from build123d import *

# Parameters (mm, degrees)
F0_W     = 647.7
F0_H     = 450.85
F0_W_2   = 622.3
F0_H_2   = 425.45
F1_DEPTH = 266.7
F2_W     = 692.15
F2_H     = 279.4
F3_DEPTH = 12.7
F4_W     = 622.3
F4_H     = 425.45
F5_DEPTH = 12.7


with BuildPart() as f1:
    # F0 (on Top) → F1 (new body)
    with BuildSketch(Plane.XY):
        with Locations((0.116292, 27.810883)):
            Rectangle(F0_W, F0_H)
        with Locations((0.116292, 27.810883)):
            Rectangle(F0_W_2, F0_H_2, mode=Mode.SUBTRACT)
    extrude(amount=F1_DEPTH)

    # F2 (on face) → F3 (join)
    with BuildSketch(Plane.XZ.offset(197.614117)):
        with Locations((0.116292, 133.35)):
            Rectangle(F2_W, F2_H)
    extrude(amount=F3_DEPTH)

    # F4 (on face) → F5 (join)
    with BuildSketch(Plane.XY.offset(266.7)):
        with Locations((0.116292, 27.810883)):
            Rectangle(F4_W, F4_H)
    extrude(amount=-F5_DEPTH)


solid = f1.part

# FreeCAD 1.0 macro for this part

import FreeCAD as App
import Part
import Sketcher
from FreeCAD import Vector
Q = App.Units.Quantity

doc = App.newDocument("Part")
params = doc.addObject("Spreadsheet::Sheet", "Params")
for row, (alias, value) in enumerate([
    ("sketch1_width", "25.5 in"),
    ("sketch1_width2", "24.5 in"),
    ("sketch1_height", "17.75 in"),
    ("sketch1_height2", "16.75 in"),
    ("pad1_length", "10.5 in"),
    ("sketch2_height", "11 in"),
    ("sketch2_width", "27.25 in"),
    ("pad2_length", "0.5 in"),
    ("sketch3_width", "24.5 in"),
    ("sketch3_height", "16.75 in"),
    ("pad3_length", "0.5 in"),
], start=1):
    params.set(f"A{row}", alias)
    params.set(f"B{row}", "=" + value)
    params.setAlias(f"B{row}", alias)

body = doc.addObject("PartDesign::Body", "Body")

sketch1 = body.newObject("Sketcher::SketchObject", "Sketch")
sketch1.AttachmentSupport = (doc.getObject("XY_Plane"), [""])
sketch1.MapMode = "FlatFace"
sketch1.addGeometry([
    Part.LineSegment(Vector(-324, 253, 0), Vector(-324, -198, 0)),
    Part.LineSegment(Vector(-324, -198, 0), Vector(324, -198, 0)),
    Part.LineSegment(Vector(324, -198, 0), Vector(324, 253, 0)),
    Part.LineSegment(Vector(324, 253, 0), Vector(-324, 253, 0)),
    Part.LineSegment(Vector(311, -185, 0), Vector(-311, -185, 0)),
    Part.LineSegment(Vector(-311, -185, 0), Vector(-311, 241, 0)),
    Part.LineSegment(Vector(-311, 241, 0), Vector(311, 241, 0)),
    Part.LineSegment(Vector(311, 241, 0), Vector(311, -185, 0)),
], False)
sketch1.addConstraint([
    Sketcher.Constraint("Coincident", 0, 2, 1, 1),
    Sketcher.Constraint("Coincident", 1, 2, 2, 1),
    Sketcher.Constraint("Coincident", 2, 2, 3, 1),
    Sketcher.Constraint("Coincident", 3, 2, 0, 1),
    Sketcher.Constraint("Coincident", 4, 2, 5, 1),
    Sketcher.Constraint("Coincident", 5, 2, 6, 1),
    Sketcher.Constraint("Coincident", 6, 2, 7, 1),
    Sketcher.Constraint("Coincident", 7, 2, 4, 1),
    Sketcher.Constraint("Vertical", 0),
    Sketcher.Constraint("Horizontal", 1),
    Sketcher.Constraint("Vertical", 2),
    Sketcher.Constraint("Horizontal", 3),
    Sketcher.Constraint("Horizontal", 4),
    Sketcher.Constraint("Vertical", 5),
    Sketcher.Constraint("Horizontal", 6),
    Sketcher.Constraint("Vertical", 7),
    Sketcher.Constraint("DistanceX", 1, 1, 1, 2, Q("25.5 in")),
    Sketcher.Constraint("DistanceX", 4, 2, 4, 1, Q("24.5 in")),
    Sketcher.Constraint("DistanceX", 4, 2, 1, 2, Q("25 in")),
    Sketcher.Constraint("DistanceY", 0, 2, 0, 1, Q("17.75 in")),
    Sketcher.Constraint("DistanceY", 5, 1, 5, 2, Q("16.75 in")),
    Sketcher.Constraint("DistanceY", 0, 2, 4, 2, Q("0.5 in")),
    Sketcher.Constraint("DistanceX", 0, 2, -1, 1, 323.733708),
    Sketcher.Constraint("DistanceY", 0, 2, -1, 1, 197.614117),
])
sketch1.setExpression("Constraints[16]", "Params.sketch1_width")
sketch1.setExpression("Constraints[17]", "Params.sketch1_width2")
sketch1.setExpression("Constraints[19]", "Params.sketch1_height")
sketch1.setExpression("Constraints[20]", "Params.sketch1_height2")
pad1 = body.newObject("PartDesign::Pad", "Pad")
pad1.Profile = sketch1
pad1.setExpression("Length", "Params.pad1_length")

sketch2 = body.newObject("Sketcher::SketchObject", "Sketch001")
sketch2.AttachmentSupport = (doc.getObject("XZ_Plane"), [""])
sketch2.MapMode = "FlatFace"
sketch2.AttachmentOffset = App.Placement(Vector(0, 0, 197.614117), App.Rotation())
sketch2.addGeometry([
    Part.LineSegment(Vector(-346, 273, 0), Vector(-346, -6, 0)),
    Part.LineSegment(Vector(-346, -6, 0), Vector(346, -6, 0)),
    Part.LineSegment(Vector(346, -6, 0), Vector(346, 273, 0)),
    Part.LineSegment(Vector(346, 273, 0), Vector(-346, 273, 0)),
], False)
sketch2.addConstraint([
    Sketcher.Constraint("Coincident", 0, 2, 1, 1),
    Sketcher.Constraint("Coincident", 1, 2, 2, 1),
    Sketcher.Constraint("Coincident", 2, 2, 3, 1),
    Sketcher.Constraint("Coincident", 3, 2, 0, 1),
    Sketcher.Constraint("Vertical", 0),
    Sketcher.Constraint("Horizontal", 1),
    Sketcher.Constraint("Vertical", 2),
    Sketcher.Constraint("Horizontal", 3),
    Sketcher.Constraint("DistanceY", 0, 2, 0, 1, Q("11 in")),
    Sketcher.Constraint("DistanceX", 1, 1, 1, 2, Q("27.25 in")),
    Sketcher.Constraint("DistanceY", 0, 2, -1, 1, Q("0.25 in")),
    Sketcher.Constraint("DistanceX", 0, 2, -1, 1, 345.958708),
])
sketch2.setExpression("Constraints[8]", "Params.sketch2_height")
sketch2.setExpression("Constraints[9]", "Params.sketch2_width")
pad2 = body.newObject("PartDesign::Pad", "Pad001")
pad2.Profile = sketch2
pad2.setExpression("Length", "Params.pad2_length")

sketch3 = body.newObject("Sketcher::SketchObject", "Sketch002")
sketch3.AttachmentSupport = (doc.getObject("XY_Plane"), [""])
sketch3.MapMode = "FlatFace"
sketch3.AttachmentOffset = App.Placement(Vector(0, 0, 10.5 * 25.4), App.Rotation())
sketch3.addGeometry([
    Part.LineSegment(Vector(-311, 241, 0), Vector(-311, -185, 0)),
    Part.LineSegment(Vector(-311, -185, 0), Vector(311, -185, 0)),
    Part.LineSegment(Vector(311, -185, 0), Vector(311, 241, 0)),
    Part.LineSegment(Vector(311, 241, 0), Vector(-311, 241, 0)),
], False)
sketch3.addConstraint([
    Sketcher.Constraint("Coincident", 0, 2, 1, 1),
    Sketcher.Constraint("Coincident", 1, 2, 2, 1),
    Sketcher.Constraint("Coincident", 2, 2, 3, 1),
    Sketcher.Constraint("Coincident", 3, 2, 0, 1),
    Sketcher.Constraint("Vertical", 0),
    Sketcher.Constraint("Horizontal", 1),
    Sketcher.Constraint("Vertical", 2),
    Sketcher.Constraint("Horizontal", 3),
    Sketcher.Constraint("DistanceX", 1, 1, 1, 2, Q("24.5 in")),
    Sketcher.Constraint("DistanceY", 0, 2, 0, 1, Q("16.75 in")),
    Sketcher.Constraint("DistanceX", 0, 2, -1, 1, 311.033708),
    Sketcher.Constraint("DistanceY", 0, 2, -1, 1, 184.914117),
])
sketch3.setExpression("Constraints[8]", "Params.sketch3_width")
sketch3.setExpression("Constraints[9]", "Params.sketch3_height")
pad3 = body.newObject("PartDesign::Pad", "Pad002")
pad3.Profile = sketch3
pad3.setExpression("Length", "Params.pad3_length")
pad3.Reversed = True

doc.recompute()
